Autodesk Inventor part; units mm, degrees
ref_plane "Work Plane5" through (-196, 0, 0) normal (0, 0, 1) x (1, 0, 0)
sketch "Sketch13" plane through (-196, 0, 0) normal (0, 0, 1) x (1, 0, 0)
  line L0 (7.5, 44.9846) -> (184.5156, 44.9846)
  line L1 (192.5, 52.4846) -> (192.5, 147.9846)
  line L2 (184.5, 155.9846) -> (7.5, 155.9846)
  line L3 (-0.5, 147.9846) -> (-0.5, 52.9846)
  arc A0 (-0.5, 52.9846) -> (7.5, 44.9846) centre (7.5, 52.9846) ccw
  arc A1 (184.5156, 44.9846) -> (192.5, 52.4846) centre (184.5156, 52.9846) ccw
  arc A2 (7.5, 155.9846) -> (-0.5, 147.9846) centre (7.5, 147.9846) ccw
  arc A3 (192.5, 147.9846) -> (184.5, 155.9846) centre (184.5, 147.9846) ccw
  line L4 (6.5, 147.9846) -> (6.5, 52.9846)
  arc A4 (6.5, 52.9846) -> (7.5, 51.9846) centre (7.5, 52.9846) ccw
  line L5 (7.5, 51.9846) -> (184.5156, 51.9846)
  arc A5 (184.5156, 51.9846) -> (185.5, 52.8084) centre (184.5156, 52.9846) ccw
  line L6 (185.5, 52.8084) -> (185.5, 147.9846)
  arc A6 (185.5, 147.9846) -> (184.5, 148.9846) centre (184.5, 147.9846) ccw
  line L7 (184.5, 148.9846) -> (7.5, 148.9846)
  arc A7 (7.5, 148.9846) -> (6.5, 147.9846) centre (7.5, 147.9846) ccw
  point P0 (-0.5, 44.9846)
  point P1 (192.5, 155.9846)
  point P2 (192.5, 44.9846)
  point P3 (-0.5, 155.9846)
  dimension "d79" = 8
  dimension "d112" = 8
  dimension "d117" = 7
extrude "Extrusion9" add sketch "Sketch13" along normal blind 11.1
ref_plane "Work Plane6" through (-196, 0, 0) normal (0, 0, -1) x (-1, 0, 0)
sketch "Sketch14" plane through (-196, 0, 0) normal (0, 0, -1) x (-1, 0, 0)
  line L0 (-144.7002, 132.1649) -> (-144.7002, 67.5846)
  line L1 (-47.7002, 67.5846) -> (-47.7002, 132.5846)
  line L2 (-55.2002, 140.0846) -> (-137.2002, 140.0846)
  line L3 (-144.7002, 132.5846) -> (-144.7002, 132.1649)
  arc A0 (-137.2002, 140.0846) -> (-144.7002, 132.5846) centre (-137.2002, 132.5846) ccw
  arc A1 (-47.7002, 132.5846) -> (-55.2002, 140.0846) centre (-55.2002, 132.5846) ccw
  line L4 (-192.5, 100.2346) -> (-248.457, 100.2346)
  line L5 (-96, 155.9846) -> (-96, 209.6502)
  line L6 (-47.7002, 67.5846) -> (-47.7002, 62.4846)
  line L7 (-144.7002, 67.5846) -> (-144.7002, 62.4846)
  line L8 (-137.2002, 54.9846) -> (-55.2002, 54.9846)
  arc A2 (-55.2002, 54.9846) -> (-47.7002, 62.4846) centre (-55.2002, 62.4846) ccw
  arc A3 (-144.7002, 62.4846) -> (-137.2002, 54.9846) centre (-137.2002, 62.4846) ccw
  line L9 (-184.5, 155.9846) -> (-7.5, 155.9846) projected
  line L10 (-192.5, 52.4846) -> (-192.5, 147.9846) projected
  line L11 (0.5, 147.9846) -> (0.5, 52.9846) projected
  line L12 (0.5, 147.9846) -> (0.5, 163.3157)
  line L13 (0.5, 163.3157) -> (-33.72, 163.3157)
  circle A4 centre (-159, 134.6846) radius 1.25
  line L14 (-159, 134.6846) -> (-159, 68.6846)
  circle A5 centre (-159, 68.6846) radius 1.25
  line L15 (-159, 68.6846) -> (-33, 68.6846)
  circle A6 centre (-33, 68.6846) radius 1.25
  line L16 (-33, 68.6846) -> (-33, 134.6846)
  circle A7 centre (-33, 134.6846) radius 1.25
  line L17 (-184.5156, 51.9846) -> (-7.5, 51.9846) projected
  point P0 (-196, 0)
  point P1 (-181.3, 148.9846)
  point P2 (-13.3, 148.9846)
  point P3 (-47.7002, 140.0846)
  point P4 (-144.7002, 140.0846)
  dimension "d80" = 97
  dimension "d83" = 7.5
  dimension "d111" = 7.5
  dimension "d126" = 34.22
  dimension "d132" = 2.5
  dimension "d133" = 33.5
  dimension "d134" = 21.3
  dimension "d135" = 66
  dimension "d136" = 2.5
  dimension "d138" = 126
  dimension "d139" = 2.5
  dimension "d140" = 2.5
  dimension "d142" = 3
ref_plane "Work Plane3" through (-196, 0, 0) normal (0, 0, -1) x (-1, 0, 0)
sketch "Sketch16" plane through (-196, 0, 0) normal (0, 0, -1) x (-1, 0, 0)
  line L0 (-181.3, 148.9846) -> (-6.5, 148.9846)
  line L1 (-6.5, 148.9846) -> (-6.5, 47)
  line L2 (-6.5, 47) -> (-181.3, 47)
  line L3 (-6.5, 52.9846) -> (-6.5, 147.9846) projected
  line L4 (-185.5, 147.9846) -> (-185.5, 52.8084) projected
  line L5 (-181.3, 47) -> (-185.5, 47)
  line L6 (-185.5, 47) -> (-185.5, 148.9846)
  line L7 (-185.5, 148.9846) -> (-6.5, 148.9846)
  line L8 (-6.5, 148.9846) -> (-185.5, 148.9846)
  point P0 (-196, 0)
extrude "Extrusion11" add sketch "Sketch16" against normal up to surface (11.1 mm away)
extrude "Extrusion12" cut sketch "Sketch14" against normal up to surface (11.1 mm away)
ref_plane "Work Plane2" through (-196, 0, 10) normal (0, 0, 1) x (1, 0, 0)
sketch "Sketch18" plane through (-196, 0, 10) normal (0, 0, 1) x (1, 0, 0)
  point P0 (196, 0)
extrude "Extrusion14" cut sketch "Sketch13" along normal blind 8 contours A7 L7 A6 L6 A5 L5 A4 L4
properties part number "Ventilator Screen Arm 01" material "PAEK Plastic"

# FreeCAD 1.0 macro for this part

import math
import FreeCAD as App
import Part
import Sketcher
Q = App.Units.Quantity


def add_polygon(sketch, points):
    """Adds a closed chain of lines whose ends are joined by coincident constraints."""
    first, n = sketch.GeometryCount, len(points)
    for a, b in zip(points, points[1:] + points[:1]):
        sketch.addGeometry(Part.LineSegment(App.Vector(*a, 0), App.Vector(*b, 0)), False)
    for i in range(n):
        sketch.addConstraint(Sketcher.Constraint("Coincident", first + i, 2, first + (i + 1) % n, 1))

doc = App.newDocument("Part")
body = doc.addObject("PartDesign::Body", "Body")

# Sketch on XY plane
sketch1 = body.newObject("Sketcher::SketchObject", "Sketch")
sketch1.AttachmentSupport = (doc.getObject("XY_Plane"), [""])
sketch1.MapMode = "FlatFace"
sketch1.addGeometry([
    Part.ArcOfCircle(Part.Circle(App.Vector(-188.5, 53, 0), App.Vector(0, 0, 1), 8), math.radians(180), math.radians(270)),  # 0
    Part.LineSegment(App.Vector(-188.5, 45, 0), App.Vector(-11.5, 45, 0)),  # 1
    Part.ArcOfCircle(Part.Circle(App.Vector(-11.5, 53, 0), App.Vector(0, 0, 1), 8), math.radians(-90), math.radians(-4)),  # 2
    Part.LineSegment(App.Vector(-3.5, 52.5, 0), App.Vector(-3.5, 148, 0)),  # 3
    Part.ArcOfCircle(Part.Circle(App.Vector(-11.5, 148, 0), App.Vector(0, 0, 1), 8), math.radians(0), math.radians(90)),  # 4
    Part.LineSegment(App.Vector(-11.5, 156, 0), App.Vector(-188.5, 156, 0)),  # 5
    Part.ArcOfCircle(Part.Circle(App.Vector(-188.5, 148, 0), App.Vector(0, 0, 1), 8), math.radians(90), math.radians(180)),  # 6
    Part.LineSegment(App.Vector(-196.5, 148, 0), App.Vector(-196.5, 53, 0)),  # 7
    Part.LineSegment(App.Vector(-189.5, 53, 0), App.Vector(-189.5, 148, 0)),  # 8
    Part.ArcOfCircle(Part.Circle(App.Vector(-188.5, 148, 0), App.Vector(0, 0, 1), 1), math.radians(90), math.radians(180)),  # 9
    Part.LineSegment(App.Vector(-188.5, 149, 0), App.Vector(-11.5, 149, 0)),  # 10
    Part.ArcOfCircle(Part.Circle(App.Vector(-11.5, 148, 0), App.Vector(0, 0, 1), 1), math.radians(0), math.radians(90)),  # 11
    Part.LineSegment(App.Vector(-10.5, 148, 0), App.Vector(-10.5, 52.8, 0)),  # 12
    Part.ArcOfCircle(Part.Circle(App.Vector(-11.5, 53, 0), App.Vector(0, 0, 1), 1), math.radians(-90), math.radians(-10)),  # 13
    Part.LineSegment(App.Vector(-11.5, 52, 0), App.Vector(-188.5, 52, 0)),  # 14
    Part.ArcOfCircle(Part.Circle(App.Vector(-188.5, 53, 0), App.Vector(0, 0, 1), 1), math.radians(180), math.radians(270)),  # 15
], False)
sketch1.addConstraint([
    Sketcher.Constraint("Tangent", 0, 2, 1, 1),
    Sketcher.Constraint("Tangent", 1, 2, 2, 1),
    Sketcher.Constraint("Coincident", 2, 2, 3, 1),
    Sketcher.Constraint("Tangent", 3, 2, 4, 1),
    Sketcher.Constraint("Tangent", 4, 2, 5, 1),
    Sketcher.Constraint("Tangent", 5, 2, 6, 1),
    Sketcher.Constraint("Tangent", 6, 2, 7, 1),
    Sketcher.Constraint("Tangent", 7, 2, 0, 1),
    Sketcher.Constraint("Tangent", 8, 2, 9, 2),
    Sketcher.Constraint("Tangent", 9, 1, 10, 1),
    Sketcher.Constraint("Tangent", 10, 2, 11, 2),
    Sketcher.Constraint("Tangent", 11, 1, 12, 1),
    Sketcher.Constraint("Coincident", 12, 2, 13, 2),
    Sketcher.Constraint("Tangent", 13, 1, 14, 1),
    Sketcher.Constraint("Tangent", 14, 2, 15, 2),
    Sketcher.Constraint("Tangent", 15, 1, 8, 1),
    Sketcher.Constraint("Horizontal", 1),
    Sketcher.Constraint("Vertical", 3),
    Sketcher.Constraint("Horizontal", 5),
    Sketcher.Constraint("Vertical", 7),
    Sketcher.Constraint("Vertical", 8),
    Sketcher.Constraint("Horizontal", 10),
    Sketcher.Constraint("Vertical", 12),
    Sketcher.Constraint("Horizontal", 14),
    Sketcher.Constraint("Coincident", 9, 3, 6, 3),
    Sketcher.Constraint("Coincident", 11, 3, 4, 3),
    Sketcher.Constraint("Coincident", 13, 3, 2, 3),
    Sketcher.Constraint("Coincident", 15, 3, 0, 3),
    Sketcher.Constraint("Equal", 0, 2),
    Sketcher.Constraint("Equal", 2, 4),
    Sketcher.Constraint("Equal", 4, 6),
    Sketcher.Constraint("Radius", 0, Q("8 mm")),
    Sketcher.Constraint("Radius", 9, Q("1 mm")),
    Sketcher.Constraint("DistanceX", 5, 2, 5, 1, Q("177 mm")),
    Sketcher.Constraint("DistanceY", 7, 2, 7, 1, Q("95 mm")),
    Sketcher.Constraint("DistanceY", 3, 1, 3, 2, Q("95.5 mm")),
    Sketcher.Constraint("DistanceX", 0, 3, -1, 1, Q("188.5 mm")),
    Sketcher.Constraint("DistanceY", -1, 1, 0, 3, Q("52.9846 mm")),
])
pad1 = body.newObject("PartDesign::Pad", "Pad")
pad1.Profile = sketch1
pad1.Length = 11.1

# Sketch on XY plane
sketch2 = body.newObject("Sketcher::SketchObject", "Sketch001")
sketch2.AttachmentSupport = (doc.getObject("XY_Plane"), [""])
sketch2.MapMode = "FlatFace"
add_polygon(sketch2, [(-190, 149), (-10, 149), (-10, 47), (-190, 47)])  # lines 0-3
sketch2.addConstraint([
    Sketcher.Constraint("Horizontal", 0),
    Sketcher.Constraint("Vertical", 1),
    Sketcher.Constraint("Horizontal", 2),
    Sketcher.Constraint("Vertical", 3),
    Sketcher.Constraint("DistanceX", 0, 1, 0, 2, Q("179 mm")),
    Sketcher.Constraint("DistanceY", -1, 1, 1, 2, Q("47 mm")),
    Sketcher.Constraint("DistanceX", 0, 2, -1, 1, Q("10.5 mm")),
    Sketcher.Constraint("DistanceY", 1, 2, 1, 1, Q("101.9846 mm")),
])
pad2 = body.newObject("PartDesign::Pad", "Pad001")
pad2.Profile = sketch2
pad2.Length = 11.1

# Sketch on XY plane
sketch3 = body.newObject("Sketcher::SketchObject", "Sketch002")
sketch3.AttachmentSupport = (doc.getObject("XY_Plane"), [""])
sketch3.MapMode = "FlatFace"
sketch3.addGeometry([
    Part.LineSegment(App.Vector(-51.3, 132.6, 0), App.Vector(-51.3, 62.5, 0)),  # 0
    Part.ArcOfCircle(Part.Circle(App.Vector(-58.8, 62.5, 0), App.Vector(0, 0, 1), 7.5), math.radians(-90), math.radians(0)),  # 1
    Part.LineSegment(App.Vector(-58.8, 55, 0), App.Vector(-140.8, 55, 0)),  # 2
    Part.ArcOfCircle(Part.Circle(App.Vector(-140.8, 62.5, 0), App.Vector(0, 0, 1), 7.5), math.radians(180), math.radians(270)),  # 3
    Part.LineSegment(App.Vector(-148.3, 62.5, 0), App.Vector(-148.3, 132.6, 0)),  # 4
    Part.ArcOfCircle(Part.Circle(App.Vector(-140.8, 132.6, 0), App.Vector(0, 0, 1), 7.5), math.radians(90), math.radians(180)),  # 5
    Part.LineSegment(App.Vector(-140.8, 140.1, 0), App.Vector(-58.8, 140.1, 0)),  # 6
    Part.ArcOfCircle(Part.Circle(App.Vector(-58.8, 132.6, 0), App.Vector(0, 0, 1), 7.5), math.radians(0), math.radians(90)),  # 7
    Part.Circle(App.Vector(-163, 134.7, 0), App.Vector(0, 0, 1), 1.2),  # 8
    Part.Circle(App.Vector(-163, 68.7, 0), App.Vector(0, 0, 1), 1.2),  # 9
    Part.Circle(App.Vector(-37, 134.7, 0), App.Vector(0, 0, 1), 1.2),  # 10
    Part.Circle(App.Vector(-37, 68.7, 0), App.Vector(0, 0, 1), 1.2),  # 11
], False)
sketch3.addConstraint([
    Sketcher.Constraint("Tangent", 0, 2, 1, 2),
    Sketcher.Constraint("Tangent", 1, 1, 2, 1),
    Sketcher.Constraint("Tangent", 2, 2, 3, 2),
    Sketcher.Constraint("Tangent", 3, 1, 4, 1),
    Sketcher.Constraint("Tangent", 4, 2, 5, 2),
    Sketcher.Constraint("Tangent", 5, 1, 6, 1),
    Sketcher.Constraint("Tangent", 6, 2, 7, 2),
    Sketcher.Constraint("Tangent", 7, 1, 0, 1),
    Sketcher.Constraint("Vertical", 0),
    Sketcher.Constraint("Horizontal", 2),
    Sketcher.Constraint("Vertical", 4),
    Sketcher.Constraint("Horizontal", 6),
    Sketcher.Constraint("Equal", 1, 3),
    Sketcher.Constraint("Equal", 3, 5),
    Sketcher.Constraint("Equal", 5, 7),
    Sketcher.Constraint("Equal", 8, 9),
    Sketcher.Constraint("Equal", 9, 10),
    Sketcher.Constraint("Equal", 10, 11),
    Sketcher.Constraint("Horizontal", 8, 3, 10, 3),
    Sketcher.Constraint("Horizontal", 9, 3, 11, 3),
    Sketcher.Constraint("Vertical", 8, 3, 9, 3),
    Sketcher.Constraint("Vertical", 10, 3, 11, 3),
    Sketcher.Constraint("Diameter", 8, Q("2.5 mm")),
    Sketcher.Constraint("Radius", 1, Q("7.5 mm")),
    Sketcher.Constraint("DistanceY", 9, 3, 8, 3, Q("66 mm")),
    Sketcher.Constraint("DistanceX", 8, 3, 10, 3, Q("126 mm")),
    Sketcher.Constraint("DistanceX", 2, 2, 2, 1, Q("82 mm")),
    Sketcher.Constraint("DistanceY", 0, 2, 0, 1, Q("70.1 mm")),
    Sketcher.Constraint("DistanceX", 8, 3, -1, 1, Q("163 mm")),
    Sketcher.Constraint("DistanceY", 5, 3, 8, 3, Q("2.1 mm")),
    Sketcher.Constraint("DistanceX", 1, 3, -1, 1, Q("58.7998 mm")),
    Sketcher.Constraint("DistanceY", -1, 1, 1, 3, Q("62.4846 mm")),
])
pocket1 = body.newObject("PartDesign::Pocket", "Pocket")
pocket1.Profile = sketch3
pocket1.Length = 11.1
pocket1.Reversed = True

# Sketch on XY plane
sketch4 = body.newObject("Sketcher::SketchObject", "Sketch003")
sketch4.AttachmentSupport = (doc.getObject("XY_Plane"), [""])
sketch4.MapMode = "FlatFace"
sketch4.addGeometry([
    Part.ArcOfCircle(Part.Circle(App.Vector(-188.5, 148, 0), App.Vector(0, 0, 1), 1), math.radians(90), math.radians(180)),  # 0
    Part.LineSegment(App.Vector(-189.5, 148, 0), App.Vector(-189.5, 53, 0)),  # 1
    Part.ArcOfCircle(Part.Circle(App.Vector(-188.5, 53, 0), App.Vector(0, 0, 1), 1), math.radians(180), math.radians(270)),  # 2
    Part.LineSegment(App.Vector(-188.5, 52, 0), App.Vector(-11.5, 52, 0)),  # 3
    Part.ArcOfCircle(Part.Circle(App.Vector(-11.5, 53, 0), App.Vector(0, 0, 1), 1), math.radians(-90), math.radians(-10)),  # 4
    Part.LineSegment(App.Vector(-10.5, 52.8, 0), App.Vector(-10.5, 148, 0)),  # 5
    Part.ArcOfCircle(Part.Circle(App.Vector(-11.5, 148, 0), App.Vector(0, 0, 1), 1), math.radians(0), math.radians(90)),  # 6
    Part.LineSegment(App.Vector(-11.5, 149, 0), App.Vector(-188.5, 149, 0)),  # 7
], False)
sketch4.addConstraint([
    Sketcher.Constraint("Tangent", 0, 2, 1, 1),
    Sketcher.Constraint("Tangent", 1, 2, 2, 1),
    Sketcher.Constraint("Tangent", 2, 2, 3, 1),
    Sketcher.Constraint("Tangent", 3, 2, 4, 1),
    Sketcher.Constraint("Coincident", 4, 2, 5, 1),
    Sketcher.Constraint("Tangent", 5, 2, 6, 1),
    Sketcher.Constraint("Tangent", 6, 2, 7, 1),
    Sketcher.Constraint("Tangent", 7, 2, 0, 1),
    Sketcher.Constraint("Vertical", 1),
    Sketcher.Constraint("Horizontal", 3),
    Sketcher.Constraint("Vertical", 5),
    Sketcher.Constraint("Horizontal", 7),
    Sketcher.Constraint("Equal", 0, 2),
    Sketcher.Constraint("Equal", 2, 4),
    Sketcher.Constraint("Equal", 4, 6),
    Sketcher.Constraint("Radius", 0, Q("1 mm")),
    Sketcher.Constraint("DistanceX", 7, 2, 7, 1, Q("177 mm")),
    Sketcher.Constraint("DistanceY", 1, 2, 1, 1, Q("95 mm")),
    Sketcher.Constraint("DistanceX", 0, 3, -1, 1, Q("188.5 mm")),
    Sketcher.Constraint("DistanceX", 3, 1, 3, 2, Q("177.0156 mm")),
    Sketcher.Constraint("DistanceY", -1, 1, 0, 3, Q("147.9846 mm")),
])
pocket2 = body.newObject("PartDesign::Pocket", "Pocket001")
pocket2.Profile = sketch4
pocket2.Length = 8
pocket2.Reversed = True

doc.recompute()
